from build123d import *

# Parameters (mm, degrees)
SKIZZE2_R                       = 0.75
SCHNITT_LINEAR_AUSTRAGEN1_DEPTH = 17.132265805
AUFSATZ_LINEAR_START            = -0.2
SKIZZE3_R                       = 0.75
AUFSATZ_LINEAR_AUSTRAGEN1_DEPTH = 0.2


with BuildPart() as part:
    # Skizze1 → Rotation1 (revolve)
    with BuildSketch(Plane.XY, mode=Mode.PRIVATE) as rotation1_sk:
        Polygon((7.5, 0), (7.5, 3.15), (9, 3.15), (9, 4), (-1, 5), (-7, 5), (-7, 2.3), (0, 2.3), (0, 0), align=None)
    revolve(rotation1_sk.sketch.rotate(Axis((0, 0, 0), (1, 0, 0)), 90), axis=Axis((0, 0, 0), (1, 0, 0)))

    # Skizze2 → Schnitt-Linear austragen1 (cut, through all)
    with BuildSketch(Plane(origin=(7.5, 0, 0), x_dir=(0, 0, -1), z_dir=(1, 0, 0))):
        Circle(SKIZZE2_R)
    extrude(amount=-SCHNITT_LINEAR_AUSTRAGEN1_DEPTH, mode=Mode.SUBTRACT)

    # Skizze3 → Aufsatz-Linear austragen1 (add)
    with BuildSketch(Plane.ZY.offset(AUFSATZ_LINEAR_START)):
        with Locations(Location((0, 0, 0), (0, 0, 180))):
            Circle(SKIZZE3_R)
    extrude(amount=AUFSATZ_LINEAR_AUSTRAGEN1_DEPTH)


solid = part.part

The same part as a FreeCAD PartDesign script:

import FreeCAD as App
import Part
import Sketcher
Q = App.Units.Quantity

doc = App.newDocument("Part")
params = doc.addObject("Spreadsheet::Sheet", "Params")
for row, (alias, value) in enumerate([
    ("sketch1_width", "6 mm"),
    ("sketch1_width2", "7 mm"),
    ("sketch1_width3", "1.5 mm"),
    ("sketch1_width4", "7.5 mm"),
    ("sketch1_height", "2.7 mm"),
    ("revolution_angle", "360 deg"),
    ("sketch2_diameter", "1.5 mm"),
    ("sketch3_diameter", "1.5 mm"),
    ("pad1_length", "0.2 mm"),
], start=1):
    params.set(f"A{row}", alias)
    params.set(f"B{row}", "=" + value)
    params.setAlias(f"B{row}", alias)

body = doc.addObject("PartDesign::Body", "Body")

sketch1 = doc.addObject("Sketcher::SketchObject", "Sketch")
body.addObject(sketch1)
sketch1.AttachmentSupport = (doc.XY_Plane, [""])
sketch1.MapMode = "FlatFace"
sketch1.addGeometry(Part.LineSegment(App.Vector(7.5, 0, 0), App.Vector(7.5, 3.1, 0)), False)
sketch1.addGeometry(Part.LineSegment(App.Vector(7.5, 3.1, 0), App.Vector(9, 3.1, 0)), False)
sketch1.addGeometry(Part.LineSegment(App.Vector(9, 3.1, 0), App.Vector(9, 4, 0)), False)
sketch1.addGeometry(Part.LineSegment(App.Vector(9, 4, 0), App.Vector(-1, 5, 0)), False)
sketch1.addGeometry(Part.LineSegment(App.Vector(-1, 5, 0), App.Vector(-7, 5, 0)), False)
sketch1.addGeometry(Part.LineSegment(App.Vector(-7, 5, 0), App.Vector(-7, 2.3, 0)), False)
sketch1.addGeometry(Part.LineSegment(App.Vector(-7, 2.3, 0), App.Vector(0, 2.3, 0)), False)
sketch1.addGeometry(Part.LineSegment(App.Vector(0, 2.3, 0), App.Vector(0, 0, 0)), False)
sketch1.addGeometry(Part.LineSegment(App.Vector(0, 0, 0), App.Vector(7.5, 0, 0)), False)
sketch1.addConstraint(Sketcher.Constraint("Coincident", 0, 2, 1, 1))
sketch1.addConstraint(Sketcher.Constraint("Coincident", 1, 2, 2, 1))
sketch1.addConstraint(Sketcher.Constraint("Coincident", 2, 2, 3, 1))
sketch1.addConstraint(Sketcher.Constraint("Coincident", 3, 2, 4, 1))
sketch1.addConstraint(Sketcher.Constraint("Coincident", 4, 2, 5, 1))
sketch1.addConstraint(Sketcher.Constraint("Coincident", 5, 2, 6, 1))
sketch1.addConstraint(Sketcher.Constraint("Coincident", 6, 2, 7, 1))
sketch1.addConstraint(Sketcher.Constraint("Coincident", 7, 2, 8, 1))
sketch1.addConstraint(Sketcher.Constraint("Coincident", 8, 2, 0, 1))
sketch1.addConstraint(Sketcher.Constraint("Vertical", 0))
sketch1.addConstraint(Sketcher.Constraint("Horizontal", 1))
sketch1.addConstraint(Sketcher.Constraint("Vertical", 2))
sketch1.addConstraint(Sketcher.Constraint("Horizontal", 4))
sketch1.addConstraint(Sketcher.Constraint("Vertical", 5))
sketch1.addConstraint(Sketcher.Constraint("Horizontal", 6))
sketch1.addConstraint(Sketcher.Constraint("Vertical", 7))
sketch1.addConstraint(Sketcher.Constraint("Horizontal", 8))
sketch1.addConstraint(Sketcher.Constraint("Coincident", 7, 2, -1, 1))
sketch1.addConstraint(Sketcher.Constraint("DistanceX", 4, 2, 4, 1, Q("6 mm")))
sketch1.addConstraint(Sketcher.Constraint("DistanceX", 6, 1, 6, 2, Q("7 mm")))
sketch1.addConstraint(Sketcher.Constraint("DistanceX", 1, 1, 1, 2, Q("1.5 mm")))
sketch1.addConstraint(Sketcher.Constraint("DistanceX", 8, 1, 8, 2, Q("7.5 mm")))
sketch1.addConstraint(Sketcher.Constraint("DistanceY", 5, 2, 5, 1, Q("2.7 mm")))
sketch1.addConstraint(Sketcher.Constraint("DistanceY", 7, 2, 7, 1, Q("2.3 mm")))
sketch1.addConstraint(Sketcher.Constraint("DistanceY", -1, 1, 2, 2, Q("4 mm")))
sketch1.addConstraint(Sketcher.Constraint("DistanceY", 0, 1, 0, 2, Q("3.15 mm")))
sketch1.setExpression("Constraints[18]", "Params.sketch1_width")
sketch1.setExpression("Constraints[19]", "Params.sketch1_width2")
sketch1.setExpression("Constraints[20]", "Params.sketch1_width3")
sketch1.setExpression("Constraints[21]", "Params.sketch1_width4")
sketch1.setExpression("Constraints[22]", "Params.sketch1_height")
revolution = doc.addObject("PartDesign::Revolution", "Revolution")
body.addObject(revolution)
revolution.Profile = sketch1
revolution.ReferenceAxis = (sketch1, ["H_Axis"])
revolution.setExpression("Angle", "Params.revolution_angle")

sketch2 = doc.addObject("Sketcher::SketchObject", "Sketch001")
body.addObject(sketch2)
sketch2.AttachmentSupport = (doc.YZ_Plane, [""])
sketch2.MapMode = "FlatFace"
sketch2.AttachmentOffset = App.Placement(App.Vector(0, 0, 7.5), App.Rotation())
sketch2.addGeometry(Part.Circle(App.Vector(0, 0, 0), App.Vector(0, 0, 1), 0.8), False)
sketch2.addConstraint(Sketcher.Constraint("Coincident", 0, 3, -1, 1))
sketch2.addConstraint(Sketcher.Constraint("Diameter", 0, Q("1.5 mm")))
sketch2.setExpression("Constraints[1]", "Params.sketch2_diameter")
pocket1 = doc.addObject("PartDesign::Pocket", "Pocket")
body.addObject(pocket1)
pocket1.Profile = sketch2
pocket1.Type = "ThroughAll"

sketch3 = doc.addObject("Sketcher::SketchObject", "Sketch002")
body.addObject(sketch3)
sketch3.AttachmentSupport = (doc.YZ_Plane, [""])
sketch3.MapMode = "FlatFace"
sketch3.AttachmentOffset = App.Placement(App.Vector(0, 0, 0.2), App.Rotation())
sketch3.addGeometry(Part.Circle(App.Vector(0, 0, 0), App.Vector(0, 0, 1), 0.8), False)
sketch3.addConstraint(Sketcher.Constraint("Coincident", 0, 3, -1, 1))
sketch3.addConstraint(Sketcher.Constraint("Diameter", 0, Q("1.5 mm")))
sketch3.setExpression("Constraints[1]", "Params.sketch3_diameter")
pad1 = doc.addObject("PartDesign::Pad", "Pad")
body.addObject(pad1)
pad1.Profile = sketch3
pad1.setExpression("Length", "Params.pad1_length")
pad1.Reversed = True

doc.recompute()
